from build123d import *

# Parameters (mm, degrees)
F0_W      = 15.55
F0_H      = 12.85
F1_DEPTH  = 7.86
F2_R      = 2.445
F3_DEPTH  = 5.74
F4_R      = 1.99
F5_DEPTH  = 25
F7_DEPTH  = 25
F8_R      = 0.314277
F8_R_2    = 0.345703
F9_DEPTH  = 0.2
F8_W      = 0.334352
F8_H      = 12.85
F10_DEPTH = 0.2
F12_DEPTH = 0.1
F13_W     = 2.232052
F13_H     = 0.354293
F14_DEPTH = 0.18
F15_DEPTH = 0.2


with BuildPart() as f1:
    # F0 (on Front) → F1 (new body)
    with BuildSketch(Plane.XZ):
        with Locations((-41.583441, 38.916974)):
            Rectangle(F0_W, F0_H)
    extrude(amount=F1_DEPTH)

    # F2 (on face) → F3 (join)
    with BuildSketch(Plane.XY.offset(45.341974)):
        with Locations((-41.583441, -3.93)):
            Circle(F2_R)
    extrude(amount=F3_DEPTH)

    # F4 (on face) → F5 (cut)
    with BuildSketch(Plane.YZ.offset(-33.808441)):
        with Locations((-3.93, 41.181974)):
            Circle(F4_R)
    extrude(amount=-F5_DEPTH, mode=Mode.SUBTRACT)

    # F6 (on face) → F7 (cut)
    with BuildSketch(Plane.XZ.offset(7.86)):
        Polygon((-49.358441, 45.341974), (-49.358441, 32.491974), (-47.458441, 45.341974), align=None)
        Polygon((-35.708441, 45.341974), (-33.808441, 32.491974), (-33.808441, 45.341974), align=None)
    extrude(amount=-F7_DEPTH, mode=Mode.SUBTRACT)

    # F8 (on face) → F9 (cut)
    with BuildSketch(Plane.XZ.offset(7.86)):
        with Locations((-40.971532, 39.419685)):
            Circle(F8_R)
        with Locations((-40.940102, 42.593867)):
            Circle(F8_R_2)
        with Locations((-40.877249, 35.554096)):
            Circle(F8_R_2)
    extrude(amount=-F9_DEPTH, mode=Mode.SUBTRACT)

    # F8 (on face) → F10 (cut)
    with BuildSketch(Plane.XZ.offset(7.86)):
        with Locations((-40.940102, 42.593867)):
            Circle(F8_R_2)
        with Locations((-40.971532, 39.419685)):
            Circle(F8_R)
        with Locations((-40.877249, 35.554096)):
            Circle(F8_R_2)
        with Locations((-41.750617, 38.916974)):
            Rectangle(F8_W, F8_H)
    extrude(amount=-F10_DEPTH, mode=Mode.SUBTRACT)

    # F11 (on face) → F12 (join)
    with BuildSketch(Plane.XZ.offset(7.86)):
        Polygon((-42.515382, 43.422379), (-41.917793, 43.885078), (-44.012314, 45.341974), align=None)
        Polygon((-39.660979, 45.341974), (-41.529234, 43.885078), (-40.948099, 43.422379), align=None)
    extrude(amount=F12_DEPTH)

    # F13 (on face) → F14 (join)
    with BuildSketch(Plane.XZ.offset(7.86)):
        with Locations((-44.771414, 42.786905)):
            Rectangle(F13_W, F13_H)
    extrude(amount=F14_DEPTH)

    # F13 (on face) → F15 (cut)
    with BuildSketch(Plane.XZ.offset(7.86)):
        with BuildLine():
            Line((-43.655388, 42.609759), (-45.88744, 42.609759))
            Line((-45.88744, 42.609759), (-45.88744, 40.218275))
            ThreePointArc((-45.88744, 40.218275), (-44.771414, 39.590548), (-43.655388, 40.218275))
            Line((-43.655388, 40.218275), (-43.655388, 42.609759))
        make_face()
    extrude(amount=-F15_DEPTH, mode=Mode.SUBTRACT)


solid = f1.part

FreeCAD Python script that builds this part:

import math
import FreeCAD as App
import Part
import Sketcher
from FreeCAD import Vector


def add_polygon(sketch, points):
    """Adds a closed chain of lines whose ends are joined by coincident constraints."""
    first, n = sketch.GeometryCount, len(points)
    for a, b in zip(points, points[1:] + points[:1]):
        sketch.addGeometry(Part.LineSegment(App.Vector(*a, 0), App.Vector(*b, 0)), False)
    for i in range(n):
        sketch.addConstraint(Sketcher.Constraint("Coincident", first + i, 2, first + (i + 1) % n, 1))

doc = App.newDocument("Part")
params = doc.addObject("Spreadsheet::Sheet", "Params")
for row, (alias, value) in enumerate([
    ("sketch1_width", "15.55 mm"),
    ("sketch1_height", "12.85 mm"),
    ("pad1_length", "7.86 mm"),
    ("sketch2_diameter", "4.89 mm"),
    ("pad2_length", "5.74 mm"),
    ("sketch3_diameter", "3.98 mm"),
    ("pocket1_length", "25 mm"),
    ("sketch4_width", "1.9 mm"),
    ("sketch4_height", "12.85 mm"),
    ("pocket2_length", "25 mm"),
    ("pocket3_length", "0.2 mm"),
    ("sketch6_height", "12.85 mm"),
    ("pocket4_length", "0.2 mm"),
    ("pad3_length", "0.1 mm"),
    ("pad4_length", "0.18 mm"),
    ("pocket5_length", "0.2 mm"),
], start=1):
    params.set(f"A{row}", alias)
    params.set(f"B{row}", "=" + value)
    params.setAlias(f"B{row}", alias)

body = doc.addObject("PartDesign::Body", "Body")

sketch1 = body.newObject("Sketcher::SketchObject", "Sketch")
sketch1.AttachmentSupport = (doc.getObject("XZ_Plane"), [""])
sketch1.MapMode = "FlatFace"
add_polygon(sketch1, [(-49.358441, 45.341974), (-49.358441, 32.491974), (-33.808441, 32.491974), (-33.808441, 45.341974)])
sketch1.addConstraint([
    Sketcher.Constraint("Vertical", 0),
    Sketcher.Constraint("Horizontal", 1),
    Sketcher.Constraint("Vertical", 2),
    Sketcher.Constraint("Horizontal", 3),
    Sketcher.Constraint("DistanceX", 1, 1, 1, 2, 15.55),
    Sketcher.Constraint("DistanceY", 0, 2, 0, 1, 12.85),
    Sketcher.Constraint("DistanceX", 0, 2, -1, 1, 49.358441),
    Sketcher.Constraint("DistanceY", -1, 1, 0, 2, 32.491974),
])
sketch1.setExpression("Constraints[8]", "Params.sketch1_width")
sketch1.setExpression("Constraints[9]", "Params.sketch1_height")
pad1 = body.newObject("PartDesign::Pad", "Pad")
pad1.Profile = sketch1
pad1.setExpression("Length", "Params.pad1_length")

sketch2 = body.newObject("Sketcher::SketchObject", "Sketch001")
sketch2.AttachmentSupport = (doc.getObject("XY_Plane"), [""])
sketch2.MapMode = "FlatFace"
sketch2.AttachmentOffset = App.Placement(Vector(0, 0, 45.341974), App.Rotation())
sketch2.addGeometry(Part.Circle(Vector(-41.583441, -3.93, 0), Vector(0, 0, 1), 2.445), False)
sketch2.addConstraint([
    Sketcher.Constraint("Diameter", 0, 4.89),
    Sketcher.Constraint("DistanceY", 0, 3, -1, 1, 3.93),
    Sketcher.Constraint("DistanceX", 0, 3, -1, 1, 41.583441),
])
sketch2.setExpression("Constraints[0]", "Params.sketch2_diameter")
pad2 = body.newObject("PartDesign::Pad", "Pad001")
pad2.Profile = sketch2
pad2.setExpression("Length", "Params.pad2_length")

sketch3 = body.newObject("Sketcher::SketchObject", "Sketch002")
sketch3.AttachmentSupport = (doc.getObject("YZ_Plane"), [""])
sketch3.MapMode = "FlatFace"
sketch3.AttachmentOffset = App.Placement(Vector(0, 0, -33.808441), App.Rotation())
sketch3.addGeometry(Part.Circle(Vector(-3.93, 41.181974, 0), Vector(0, 0, 1), 1.99), False)
sketch3.addConstraint([
    Sketcher.Constraint("Diameter", 0, 3.98),
    Sketcher.Constraint("DistanceX", 0, 3, -1, 1, 3.93),
    Sketcher.Constraint("DistanceY", -1, 1, 0, 3, 41.181974),
])
sketch3.setExpression("Constraints[0]", "Params.sketch3_diameter")
pocket1 = body.newObject("PartDesign::Pocket", "Pocket")
pocket1.Profile = sketch3
pocket1.setExpression("Length", "Params.pocket1_length")

sketch4 = body.newObject("Sketcher::SketchObject", "Sketch003")
sketch4.AttachmentSupport = (doc.getObject("XZ_Plane"), [""])
sketch4.MapMode = "FlatFace"
sketch4.AttachmentOffset = App.Placement(Vector(0, 0, 7.86), App.Rotation())
add_polygon(sketch4, [(-49.358441, 45.341974), (-49.358441, 32.491974), (-47.458441, 45.341974)])
add_polygon(sketch4, [(-35.708441, 45.341974), (-33.808441, 32.491974), (-33.808441, 45.341974)])
sketch4.addConstraint([
    Sketcher.Constraint("Vertical", 0),
    Sketcher.Constraint("Horizontal", 2),
    Sketcher.Constraint("Vertical", 4),
    Sketcher.Constraint("Horizontal", 5),
    Sketcher.Constraint("Horizontal", 0, 2, 3, 2),
    Sketcher.Constraint("Horizontal", 2, 2, 4, 2),
    Sketcher.Constraint("Equal", 2, 5),
    Sketcher.Constraint("DistanceX", 2, 2, 2, 1, 1.9),
    Sketcher.Constraint("DistanceY", 0, 2, 0, 1, 12.85),
    Sketcher.Constraint("DistanceX", 0, 2, 3, 2, 15.55),
    Sketcher.Constraint("DistanceX", 0, 2, -1, 1, 49.358441),
    Sketcher.Constraint("DistanceY", -1, 1, 0, 2, 32.491974),
])
sketch4.setExpression("Constraints[13]", "Params.sketch4_width")
sketch4.setExpression("Constraints[14]", "Params.sketch4_height")
pocket2 = body.newObject("PartDesign::Pocket", "Pocket001")
pocket2.Profile = sketch4
pocket2.setExpression("Length", "Params.pocket2_length")

sketch5 = body.newObject("Sketcher::SketchObject", "Sketch004")
sketch5.AttachmentSupport = (doc.getObject("XZ_Plane"), [""])
sketch5.MapMode = "FlatFace"
sketch5.AttachmentOffset = App.Placement(Vector(0, 0, 7.86), App.Rotation())
sketch5.addGeometry([
    Part.Circle(Vector(-40.971532, 39.419685, 0), Vector(0, 0, 1), 0.314277),
    Part.Circle(Vector(-40.940102, 42.593867, 0), Vector(0, 0, 1), 0.345703),
    Part.Circle(Vector(-40.877249, 35.554096, 0), Vector(0, 0, 1), 0.345703),
], False)
sketch5.addConstraint([
    Sketcher.Constraint("Equal", 1, 2),
    Sketcher.Constraint("Diameter", 0, 0.628554),
    Sketcher.Constraint("Diameter", 1, 0.691406),
    Sketcher.Constraint("DistanceX", 2, 3, -1, 1, 40.877249),
    Sketcher.Constraint("DistanceX", 0, 3, 1, 3, 0.03143),
    Sketcher.Constraint("DistanceY", 2, 3, 0, 3, 3.865589),
    Sketcher.Constraint("DistanceY", 2, 3, 1, 3, 7.039771),
    Sketcher.Constraint("DistanceX", 0, 3, -1, 1, 40.971532),
    Sketcher.Constraint("DistanceY", -1, 1, 0, 3, 39.419685),
])
pocket3 = body.newObject("PartDesign::Pocket", "Pocket002")
pocket3.Profile = sketch5
pocket3.setExpression("Length", "Params.pocket3_length")

sketch6 = body.newObject("Sketcher::SketchObject", "Sketch005")
sketch6.AttachmentSupport = (doc.getObject("XZ_Plane"), [""])
sketch6.MapMode = "FlatFace"
sketch6.AttachmentOffset = App.Placement(Vector(0, 0, 7.86), App.Rotation())
sketch6.addGeometry(Part.Circle(Vector(-40.940102, 42.593867, 0), Vector(0, 0, 1), 0.345703), False)
sketch6.addGeometry(Part.Circle(Vector(-40.971532, 39.419685, 0), Vector(0, 0, 1), 0.314277), False)
sketch6.addGeometry(Part.Circle(Vector(-40.877249, 35.554096, 0), Vector(0, 0, 1), 0.345703), False)
add_polygon(sketch6, [(-41.917793, 45.341974), (-41.917793, 32.491974), (-41.583441, 32.491974), (-41.583441, 45.341974)])
sketch6.addConstraint([
    Sketcher.Constraint("Vertical", 3),
    Sketcher.Constraint("Horizontal", 4),
    Sketcher.Constraint("Vertical", 5),
    Sketcher.Constraint("Horizontal", 6),
    Sketcher.Constraint("Equal", 0, 2),
    Sketcher.Constraint("DistanceY", 3, 2, 3, 1, 12.85),
    Sketcher.Constraint("Diameter", 0, 0.691406),
    Sketcher.Constraint("Diameter", 1, 0.628554),
    Sketcher.Constraint("DistanceX", 4, 1, 4, 2, 0.334352),
    Sketcher.Constraint("DistanceX", 2, 3, -1, 1, 40.877249),
    Sketcher.Constraint("DistanceX", 4, 2, -1, 1, 41.583441),
    Sketcher.Constraint("DistanceX", 1, 3, 0, 3, 0.03143),
    Sketcher.Constraint("DistanceY", 2, 3, 1, 3, 3.865589),
    Sketcher.Constraint("DistanceY", 2, 3, 0, 3, 7.039771),
    Sketcher.Constraint("DistanceX", 3, 2, 1, 3, 0.946261),
    Sketcher.Constraint("DistanceY", 3, 2, 1, 3, 6.927711),
    Sketcher.Constraint("DistanceY", -1, 1, 0, 3, 42.593867),
])
sketch6.setExpression("Constraints[9]", "Params.sketch6_height")
pocket4 = body.newObject("PartDesign::Pocket", "Pocket003")
pocket4.Profile = sketch6
pocket4.setExpression("Length", "Params.pocket4_length")

sketch7 = body.newObject("Sketcher::SketchObject", "Sketch006")
sketch7.AttachmentSupport = (doc.getObject("XZ_Plane"), [""])
sketch7.MapMode = "FlatFace"
sketch7.AttachmentOffset = App.Placement(Vector(0, 0, 7.86), App.Rotation())
add_polygon(sketch7, [(-42.515382, 43.422379), (-41.917793, 43.885078), (-44.012314, 45.341974)])
add_polygon(sketch7, [(-39.660979, 45.341974), (-41.529234, 43.885078), (-40.948099, 43.422379)])
sketch7.addConstraint([
    Sketcher.Constraint("Perpendicular", 2, 3),
    Sketcher.Constraint("Horizontal", 0, 2, 3, 2),
    Sketcher.Constraint("Horizontal", 2, 2, 4, 2),
    Sketcher.Constraint("Horizontal", 1, 2, 5, 2),
    Sketcher.Constraint("DistanceX", 4, 2, -1, 1, 40.948099),
    Sketcher.Constraint("DistanceY", 2, 2, 0, 2, 0.462699),
    Sketcher.Constraint("Distance", 0, 0.75578),
    Sketcher.Constraint("Distance", 3, 2.369161),
    Sketcher.Constraint("DistanceY", -1, 1, 2, 2, 43.422379),
    Sketcher.Constraint("DistanceX", 5, 2, -1, 1, 39.660979),
    Sketcher.Constraint("DistanceX", 1, 2, 0, 2, 2.094521),
    Sketcher.Constraint("DistanceX", 0, 2, 3, 2, 0.388559),
])
pad3 = body.newObject("PartDesign::Pad", "Pad002")
pad3.Profile = sketch7
pad3.setExpression("Length", "Params.pad3_length")

sketch8 = body.newObject("Sketcher::SketchObject", "Sketch007")
sketch8.AttachmentSupport = (doc.getObject("XZ_Plane"), [""])
sketch8.MapMode = "FlatFace"
sketch8.AttachmentOffset = App.Placement(Vector(0, 0, 7.86), App.Rotation())
add_polygon(sketch8, [(-45.88744, 42.964051), (-45.88744, 42.609758), (-43.655388, 42.609758), (-43.655388, 42.964051)])
sketch8.addConstraint([
    Sketcher.Constraint("Vertical", 0),
    Sketcher.Constraint("Horizontal", 1),
    Sketcher.Constraint("Vertical", 2),
    Sketcher.Constraint("Horizontal", 3),
    Sketcher.Constraint("DistanceX", 1, 1, 1, 2, 2.232052),
    Sketcher.Constraint("DistanceY", 0, 2, 0, 1, 0.354293),
    Sketcher.Constraint("DistanceX", 0, 2, -1, 1, 45.88744),
    Sketcher.Constraint("DistanceY", -1, 1, 0, 2, 42.609758),
])
pad4 = body.newObject("PartDesign::Pad", "Pad003")
pad4.Profile = sketch8
pad4.setExpression("Length", "Params.pad4_length")

sketch9 = body.newObject("Sketcher::SketchObject", "Sketch008")
sketch9.AttachmentSupport = (doc.getObject("XZ_Plane"), [""])
sketch9.MapMode = "FlatFace"
sketch9.AttachmentOffset = App.Placement(Vector(0, 0, 7.86), App.Rotation())
sketch9.addGeometry([
    Part.LineSegment(Vector(-43.655388, 42.609759, 0), Vector(-45.88744, 42.609759, 0)),
    Part.LineSegment(Vector(-45.88744, 42.609759, 0), Vector(-45.88744, 40.218275, 0)),
    Part.ArcOfCircle(Part.Circle(Vector(-44.771414, 40.896494, 0), Vector(0, 0, 1), 1.305946), math.radians(-148.712572), math.radians(-31.287428)),
    Part.LineSegment(Vector(-43.655388, 40.218275, 0), Vector(-43.655388, 42.609759, 0)),
], False)
sketch9.addConstraint([
    Sketcher.Constraint("Coincident", 0, 2, 1, 1),
    Sketcher.Constraint("Coincident", 1, 2, 2, 1),
    Sketcher.Constraint("Coincident", 2, 2, 3, 1),
    Sketcher.Constraint("Coincident", 3, 2, 0, 1),
    Sketcher.Constraint("Horizontal", 0),
    Sketcher.Constraint("Vertical", 1),
    Sketcher.Constraint("Vertical", 3),
    Sketcher.Constraint("Horizontal", 1, 2, 2, 2),
    Sketcher.Constraint("Radius", 2, 1.305946),
    Sketcher.Constraint("DistanceX", 0, 2, 0, 1, 2.232052),
    Sketcher.Constraint("DistanceY", 1, 2, 1, 1, 2.391484),
    Sketcher.Constraint("DistanceX", 0, 2, -1, 1, 45.88744),
    Sketcher.Constraint("DistanceY", -1, 1, 0, 2, 42.609759),
])
pocket5 = body.newObject("PartDesign::Pocket", "Pocket004")
pocket5.Profile = sketch9
pocket5.setExpression("Length", "Params.pocket5_length")

doc.recompute()
